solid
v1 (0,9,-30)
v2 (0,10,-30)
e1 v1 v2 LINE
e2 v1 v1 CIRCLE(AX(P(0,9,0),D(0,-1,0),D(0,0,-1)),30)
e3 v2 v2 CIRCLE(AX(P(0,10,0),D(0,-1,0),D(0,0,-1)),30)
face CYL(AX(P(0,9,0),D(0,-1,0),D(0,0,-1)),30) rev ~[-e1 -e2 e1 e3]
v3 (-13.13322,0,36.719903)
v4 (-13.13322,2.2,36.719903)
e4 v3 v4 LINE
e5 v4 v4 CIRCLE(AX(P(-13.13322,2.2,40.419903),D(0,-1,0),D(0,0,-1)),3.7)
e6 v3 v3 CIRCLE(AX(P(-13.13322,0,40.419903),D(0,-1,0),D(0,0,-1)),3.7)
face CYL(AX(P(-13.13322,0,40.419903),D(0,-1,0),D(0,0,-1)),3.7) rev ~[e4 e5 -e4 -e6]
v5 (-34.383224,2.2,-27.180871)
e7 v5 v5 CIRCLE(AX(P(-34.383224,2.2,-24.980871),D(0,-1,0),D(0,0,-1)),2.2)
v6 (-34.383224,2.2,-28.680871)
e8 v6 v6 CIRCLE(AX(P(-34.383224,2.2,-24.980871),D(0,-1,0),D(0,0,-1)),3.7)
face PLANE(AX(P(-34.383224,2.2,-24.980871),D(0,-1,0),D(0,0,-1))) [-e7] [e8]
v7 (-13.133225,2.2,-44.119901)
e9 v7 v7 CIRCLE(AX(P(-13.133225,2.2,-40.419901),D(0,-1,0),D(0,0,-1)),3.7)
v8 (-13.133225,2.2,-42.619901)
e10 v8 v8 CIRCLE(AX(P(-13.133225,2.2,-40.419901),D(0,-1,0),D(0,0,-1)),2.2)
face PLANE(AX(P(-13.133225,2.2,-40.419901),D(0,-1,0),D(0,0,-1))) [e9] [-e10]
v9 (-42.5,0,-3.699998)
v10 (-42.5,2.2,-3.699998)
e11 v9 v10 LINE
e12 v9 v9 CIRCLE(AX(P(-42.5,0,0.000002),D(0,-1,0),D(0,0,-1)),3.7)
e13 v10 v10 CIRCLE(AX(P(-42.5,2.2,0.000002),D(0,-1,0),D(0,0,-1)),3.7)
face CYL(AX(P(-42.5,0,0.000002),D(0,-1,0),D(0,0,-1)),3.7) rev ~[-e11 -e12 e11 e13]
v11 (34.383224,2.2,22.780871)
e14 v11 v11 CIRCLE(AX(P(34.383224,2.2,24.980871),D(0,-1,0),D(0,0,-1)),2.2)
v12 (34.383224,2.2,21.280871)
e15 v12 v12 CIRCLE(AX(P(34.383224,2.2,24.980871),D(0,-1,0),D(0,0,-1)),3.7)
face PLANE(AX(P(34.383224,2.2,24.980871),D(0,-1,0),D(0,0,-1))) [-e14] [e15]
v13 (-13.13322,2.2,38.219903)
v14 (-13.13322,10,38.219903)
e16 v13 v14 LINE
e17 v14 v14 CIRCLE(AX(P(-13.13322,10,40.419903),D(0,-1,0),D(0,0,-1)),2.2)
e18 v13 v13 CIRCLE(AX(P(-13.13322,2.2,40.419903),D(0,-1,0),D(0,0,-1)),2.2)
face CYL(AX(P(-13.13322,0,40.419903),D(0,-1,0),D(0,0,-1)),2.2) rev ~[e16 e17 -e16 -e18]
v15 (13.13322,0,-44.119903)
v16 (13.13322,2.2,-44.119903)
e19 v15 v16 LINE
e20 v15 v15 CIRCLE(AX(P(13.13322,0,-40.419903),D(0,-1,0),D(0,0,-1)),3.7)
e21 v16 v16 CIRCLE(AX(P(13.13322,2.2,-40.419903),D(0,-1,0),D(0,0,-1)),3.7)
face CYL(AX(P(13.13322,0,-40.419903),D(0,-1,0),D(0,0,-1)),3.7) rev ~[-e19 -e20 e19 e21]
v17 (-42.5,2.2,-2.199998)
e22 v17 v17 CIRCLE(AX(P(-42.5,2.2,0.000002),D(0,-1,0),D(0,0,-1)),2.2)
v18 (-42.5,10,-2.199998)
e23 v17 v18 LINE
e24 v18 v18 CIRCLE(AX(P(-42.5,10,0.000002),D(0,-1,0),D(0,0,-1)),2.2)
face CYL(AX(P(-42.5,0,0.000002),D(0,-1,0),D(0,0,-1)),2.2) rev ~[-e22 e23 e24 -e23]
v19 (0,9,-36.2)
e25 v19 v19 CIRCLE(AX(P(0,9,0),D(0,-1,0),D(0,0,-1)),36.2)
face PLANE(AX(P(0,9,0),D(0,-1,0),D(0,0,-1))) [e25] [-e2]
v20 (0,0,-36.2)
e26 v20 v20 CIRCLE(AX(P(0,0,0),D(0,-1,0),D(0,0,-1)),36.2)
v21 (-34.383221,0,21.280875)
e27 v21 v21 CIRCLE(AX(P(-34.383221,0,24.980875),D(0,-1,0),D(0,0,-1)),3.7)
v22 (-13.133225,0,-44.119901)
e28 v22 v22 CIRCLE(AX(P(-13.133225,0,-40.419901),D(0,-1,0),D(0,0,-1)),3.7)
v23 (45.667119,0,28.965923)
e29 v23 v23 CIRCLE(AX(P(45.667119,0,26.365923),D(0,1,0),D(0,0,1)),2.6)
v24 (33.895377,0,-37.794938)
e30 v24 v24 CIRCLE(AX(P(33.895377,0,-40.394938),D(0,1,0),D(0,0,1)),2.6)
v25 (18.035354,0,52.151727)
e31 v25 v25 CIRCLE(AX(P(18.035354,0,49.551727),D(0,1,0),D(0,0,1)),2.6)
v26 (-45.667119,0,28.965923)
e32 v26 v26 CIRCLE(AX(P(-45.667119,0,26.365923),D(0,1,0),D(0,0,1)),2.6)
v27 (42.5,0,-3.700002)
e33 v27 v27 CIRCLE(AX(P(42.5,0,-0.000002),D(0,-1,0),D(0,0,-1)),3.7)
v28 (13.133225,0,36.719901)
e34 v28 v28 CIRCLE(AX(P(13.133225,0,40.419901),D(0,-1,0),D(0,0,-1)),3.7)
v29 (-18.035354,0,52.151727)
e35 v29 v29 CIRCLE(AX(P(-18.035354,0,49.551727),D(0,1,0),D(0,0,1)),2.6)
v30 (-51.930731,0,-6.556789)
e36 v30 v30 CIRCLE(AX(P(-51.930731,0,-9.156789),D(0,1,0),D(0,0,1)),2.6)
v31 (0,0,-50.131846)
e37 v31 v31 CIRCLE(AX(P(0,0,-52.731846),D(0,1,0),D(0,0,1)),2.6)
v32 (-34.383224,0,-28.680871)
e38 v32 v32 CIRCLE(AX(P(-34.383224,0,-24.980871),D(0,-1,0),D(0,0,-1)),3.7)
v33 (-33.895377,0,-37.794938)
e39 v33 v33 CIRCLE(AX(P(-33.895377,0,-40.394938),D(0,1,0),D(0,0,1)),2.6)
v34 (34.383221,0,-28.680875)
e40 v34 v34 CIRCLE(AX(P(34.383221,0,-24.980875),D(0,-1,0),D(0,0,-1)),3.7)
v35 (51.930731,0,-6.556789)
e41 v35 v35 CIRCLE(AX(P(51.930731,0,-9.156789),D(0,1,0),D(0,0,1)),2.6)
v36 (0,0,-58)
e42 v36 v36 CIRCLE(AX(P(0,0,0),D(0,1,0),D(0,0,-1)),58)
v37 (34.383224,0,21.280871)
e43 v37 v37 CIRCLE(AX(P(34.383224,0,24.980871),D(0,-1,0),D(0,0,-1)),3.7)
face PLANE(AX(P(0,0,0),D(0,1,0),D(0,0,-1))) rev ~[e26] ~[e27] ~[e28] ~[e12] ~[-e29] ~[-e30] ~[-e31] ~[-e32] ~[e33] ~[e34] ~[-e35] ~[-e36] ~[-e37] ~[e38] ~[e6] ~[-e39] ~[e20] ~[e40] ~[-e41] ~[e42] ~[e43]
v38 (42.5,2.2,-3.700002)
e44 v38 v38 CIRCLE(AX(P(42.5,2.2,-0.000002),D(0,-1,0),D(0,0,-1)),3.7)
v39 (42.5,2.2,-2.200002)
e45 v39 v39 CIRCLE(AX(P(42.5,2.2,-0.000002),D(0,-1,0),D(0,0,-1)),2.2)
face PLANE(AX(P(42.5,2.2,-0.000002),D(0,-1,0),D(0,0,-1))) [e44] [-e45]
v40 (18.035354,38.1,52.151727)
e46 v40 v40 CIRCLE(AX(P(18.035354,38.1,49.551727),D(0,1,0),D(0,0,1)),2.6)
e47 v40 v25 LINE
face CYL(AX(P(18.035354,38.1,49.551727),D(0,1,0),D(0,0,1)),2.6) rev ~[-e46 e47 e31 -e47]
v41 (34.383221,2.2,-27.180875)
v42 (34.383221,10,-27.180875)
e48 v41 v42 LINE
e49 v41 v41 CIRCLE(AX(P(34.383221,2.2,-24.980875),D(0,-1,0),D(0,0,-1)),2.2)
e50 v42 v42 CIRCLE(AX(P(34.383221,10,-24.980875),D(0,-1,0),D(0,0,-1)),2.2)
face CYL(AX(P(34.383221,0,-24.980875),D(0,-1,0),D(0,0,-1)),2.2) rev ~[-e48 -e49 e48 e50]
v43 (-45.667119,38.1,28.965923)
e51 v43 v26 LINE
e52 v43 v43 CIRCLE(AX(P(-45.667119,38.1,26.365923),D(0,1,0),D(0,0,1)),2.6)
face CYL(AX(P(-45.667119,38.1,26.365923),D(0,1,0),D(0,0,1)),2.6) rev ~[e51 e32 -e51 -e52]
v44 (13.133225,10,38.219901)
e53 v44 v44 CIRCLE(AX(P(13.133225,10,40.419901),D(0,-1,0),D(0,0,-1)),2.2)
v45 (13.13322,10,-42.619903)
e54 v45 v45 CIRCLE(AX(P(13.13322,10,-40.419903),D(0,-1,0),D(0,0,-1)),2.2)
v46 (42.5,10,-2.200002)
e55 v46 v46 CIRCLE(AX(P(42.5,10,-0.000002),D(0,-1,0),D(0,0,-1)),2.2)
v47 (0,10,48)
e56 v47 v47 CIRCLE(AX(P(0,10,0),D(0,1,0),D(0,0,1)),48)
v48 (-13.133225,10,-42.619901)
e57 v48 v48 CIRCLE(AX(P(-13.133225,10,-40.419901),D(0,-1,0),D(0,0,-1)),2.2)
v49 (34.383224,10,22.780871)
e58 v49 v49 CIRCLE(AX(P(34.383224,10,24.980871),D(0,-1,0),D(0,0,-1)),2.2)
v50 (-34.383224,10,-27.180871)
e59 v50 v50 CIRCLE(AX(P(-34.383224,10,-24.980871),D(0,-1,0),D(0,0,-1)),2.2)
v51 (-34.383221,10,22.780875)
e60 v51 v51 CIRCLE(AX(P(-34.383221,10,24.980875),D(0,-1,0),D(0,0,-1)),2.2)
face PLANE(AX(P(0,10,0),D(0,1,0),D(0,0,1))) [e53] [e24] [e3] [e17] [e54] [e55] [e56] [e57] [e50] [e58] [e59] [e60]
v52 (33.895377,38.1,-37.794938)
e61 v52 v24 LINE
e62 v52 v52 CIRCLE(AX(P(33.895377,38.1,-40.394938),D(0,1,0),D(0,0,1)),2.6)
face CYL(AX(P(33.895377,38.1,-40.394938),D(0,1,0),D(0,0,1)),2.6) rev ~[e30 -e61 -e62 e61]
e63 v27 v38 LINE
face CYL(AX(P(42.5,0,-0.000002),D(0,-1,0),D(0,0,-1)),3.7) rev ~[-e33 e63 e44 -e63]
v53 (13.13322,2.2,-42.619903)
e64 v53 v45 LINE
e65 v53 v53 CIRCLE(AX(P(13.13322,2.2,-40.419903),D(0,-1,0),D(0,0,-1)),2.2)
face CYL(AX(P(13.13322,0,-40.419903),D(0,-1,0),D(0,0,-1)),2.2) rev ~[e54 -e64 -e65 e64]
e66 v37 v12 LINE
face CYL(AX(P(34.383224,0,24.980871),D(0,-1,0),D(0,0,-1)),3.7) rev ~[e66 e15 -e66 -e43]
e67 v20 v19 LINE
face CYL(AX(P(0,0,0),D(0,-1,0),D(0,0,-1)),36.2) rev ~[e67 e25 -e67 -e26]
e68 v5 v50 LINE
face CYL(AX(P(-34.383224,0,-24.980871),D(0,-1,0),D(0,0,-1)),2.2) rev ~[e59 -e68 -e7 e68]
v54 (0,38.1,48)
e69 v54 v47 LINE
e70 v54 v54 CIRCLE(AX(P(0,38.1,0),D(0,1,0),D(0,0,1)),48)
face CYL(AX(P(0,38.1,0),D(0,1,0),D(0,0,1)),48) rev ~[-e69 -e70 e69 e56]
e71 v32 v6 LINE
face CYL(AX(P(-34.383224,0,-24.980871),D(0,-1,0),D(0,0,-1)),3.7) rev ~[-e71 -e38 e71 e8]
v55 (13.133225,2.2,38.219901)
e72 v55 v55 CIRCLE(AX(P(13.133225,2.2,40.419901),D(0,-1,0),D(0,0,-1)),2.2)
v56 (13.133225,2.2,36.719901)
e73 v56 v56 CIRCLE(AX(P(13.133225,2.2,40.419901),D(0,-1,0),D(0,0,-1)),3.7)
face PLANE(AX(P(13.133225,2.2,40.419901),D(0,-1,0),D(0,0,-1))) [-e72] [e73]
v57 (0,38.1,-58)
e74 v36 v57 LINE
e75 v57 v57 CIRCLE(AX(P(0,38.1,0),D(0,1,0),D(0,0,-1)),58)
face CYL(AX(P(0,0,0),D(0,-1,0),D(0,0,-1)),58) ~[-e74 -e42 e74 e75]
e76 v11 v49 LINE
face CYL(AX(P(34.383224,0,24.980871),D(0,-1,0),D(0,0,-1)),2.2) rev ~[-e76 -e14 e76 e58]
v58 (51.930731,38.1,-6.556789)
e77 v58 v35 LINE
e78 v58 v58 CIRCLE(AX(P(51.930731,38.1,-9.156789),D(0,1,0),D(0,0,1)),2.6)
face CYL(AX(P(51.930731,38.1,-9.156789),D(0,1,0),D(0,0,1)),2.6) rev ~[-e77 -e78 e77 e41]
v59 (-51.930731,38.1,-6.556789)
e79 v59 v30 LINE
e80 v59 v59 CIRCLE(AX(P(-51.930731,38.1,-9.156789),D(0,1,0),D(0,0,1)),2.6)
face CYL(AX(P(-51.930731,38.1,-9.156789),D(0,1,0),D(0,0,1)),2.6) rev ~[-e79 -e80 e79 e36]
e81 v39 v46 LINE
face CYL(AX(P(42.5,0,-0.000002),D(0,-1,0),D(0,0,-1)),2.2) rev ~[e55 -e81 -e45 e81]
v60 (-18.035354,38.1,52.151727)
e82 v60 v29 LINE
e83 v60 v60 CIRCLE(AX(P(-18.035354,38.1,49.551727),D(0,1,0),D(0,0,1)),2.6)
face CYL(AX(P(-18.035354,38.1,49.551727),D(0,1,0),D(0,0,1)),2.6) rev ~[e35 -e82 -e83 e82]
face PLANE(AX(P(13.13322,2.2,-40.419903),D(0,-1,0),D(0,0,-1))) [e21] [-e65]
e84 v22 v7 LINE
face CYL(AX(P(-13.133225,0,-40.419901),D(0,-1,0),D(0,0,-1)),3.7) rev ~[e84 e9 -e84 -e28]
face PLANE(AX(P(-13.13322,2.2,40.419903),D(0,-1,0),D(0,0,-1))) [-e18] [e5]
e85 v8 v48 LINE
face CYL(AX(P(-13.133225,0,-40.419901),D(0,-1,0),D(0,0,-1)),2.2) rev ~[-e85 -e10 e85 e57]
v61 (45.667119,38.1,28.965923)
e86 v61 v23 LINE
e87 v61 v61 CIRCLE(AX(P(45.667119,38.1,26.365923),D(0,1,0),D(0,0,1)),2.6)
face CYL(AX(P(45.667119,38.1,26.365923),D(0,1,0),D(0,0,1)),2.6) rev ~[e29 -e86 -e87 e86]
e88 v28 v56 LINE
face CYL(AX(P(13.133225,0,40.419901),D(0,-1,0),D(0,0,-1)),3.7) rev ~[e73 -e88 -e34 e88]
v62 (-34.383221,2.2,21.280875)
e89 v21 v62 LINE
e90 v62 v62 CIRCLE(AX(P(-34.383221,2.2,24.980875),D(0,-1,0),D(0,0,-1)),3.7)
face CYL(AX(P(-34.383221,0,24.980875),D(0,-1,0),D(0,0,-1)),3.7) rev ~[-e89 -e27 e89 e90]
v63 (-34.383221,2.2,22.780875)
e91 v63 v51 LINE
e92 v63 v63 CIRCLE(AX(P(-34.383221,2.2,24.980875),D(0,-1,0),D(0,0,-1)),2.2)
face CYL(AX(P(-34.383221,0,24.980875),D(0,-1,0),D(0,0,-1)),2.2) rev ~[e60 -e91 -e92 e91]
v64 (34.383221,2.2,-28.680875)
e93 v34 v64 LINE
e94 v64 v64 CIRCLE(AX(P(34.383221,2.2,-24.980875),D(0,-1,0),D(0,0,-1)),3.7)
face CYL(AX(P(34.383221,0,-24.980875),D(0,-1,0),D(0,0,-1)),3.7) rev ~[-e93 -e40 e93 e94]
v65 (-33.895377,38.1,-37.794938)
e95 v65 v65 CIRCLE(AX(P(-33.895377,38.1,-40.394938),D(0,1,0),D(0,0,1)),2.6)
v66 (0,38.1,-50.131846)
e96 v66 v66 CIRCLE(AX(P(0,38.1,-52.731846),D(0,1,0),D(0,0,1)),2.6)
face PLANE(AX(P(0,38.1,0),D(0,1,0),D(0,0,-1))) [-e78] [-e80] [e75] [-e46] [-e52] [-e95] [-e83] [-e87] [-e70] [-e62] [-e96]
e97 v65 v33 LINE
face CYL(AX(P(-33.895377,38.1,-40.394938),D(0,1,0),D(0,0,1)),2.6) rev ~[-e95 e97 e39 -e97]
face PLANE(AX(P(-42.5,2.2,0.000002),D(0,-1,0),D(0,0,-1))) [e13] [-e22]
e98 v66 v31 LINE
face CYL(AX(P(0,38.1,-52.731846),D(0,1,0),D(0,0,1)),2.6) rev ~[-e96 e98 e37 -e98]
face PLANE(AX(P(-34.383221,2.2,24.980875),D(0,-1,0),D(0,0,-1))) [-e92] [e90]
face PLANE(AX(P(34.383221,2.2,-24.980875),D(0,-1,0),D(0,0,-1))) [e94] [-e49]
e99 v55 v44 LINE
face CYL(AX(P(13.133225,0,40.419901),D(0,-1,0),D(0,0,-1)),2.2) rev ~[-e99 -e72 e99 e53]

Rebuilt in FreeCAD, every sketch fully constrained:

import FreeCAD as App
import Part
import Sketcher

V = App.Vector

doc = App.newDocument("Part")
body = doc.addObject("PartDesign::Body", "Body")

# Sketch on XZ plane
sketch1 = body.newObject("Sketcher::SketchObject", "Sketch")
sketch1.AttachmentSupport = (doc.getObject("XZ_Plane"), [""])
sketch1.MapMode = "FlatFace"
sketch1.addGeometry(Part.Circle(V(0, 0, 0), V(0, 0, 1), 58), False)
sketch1.addConstraint([
    Sketcher.Constraint("Coincident", 0, 3, -1, 1),
    Sketcher.Constraint("Diameter", 0, 116.0),
])
pad1 = body.newObject("PartDesign::Pad", "Pad")
pad1.Profile = sketch1
pad1.Length = 38.1
pad1.Reversed = True

# Sketch on XZ plane
sketch2 = body.newObject("Sketcher::SketchObject", "Sketch001")
sketch2.AttachmentSupport = (doc.getObject("XZ_Plane"), [""])
sketch2.MapMode = "FlatFace"
sketch2.AttachmentOffset = App.Placement(V(0, 0, -38.1), App.Rotation())
sketch2.addGeometry(Part.Circle(V(0, 0, 0), V(0, 0, 1), 48), False)
sketch2.addConstraint([
    Sketcher.Constraint("Coincident", 0, 3, -1, 1),
    Sketcher.Constraint("Diameter", 0, 96.0),
])
pocket1 = body.newObject("PartDesign::Pocket", "Pocket")
pocket1.Profile = sketch2
pocket1.Length = 28.1
pocket1.Reversed = True

# Sketch on XZ plane
sketch3 = body.newObject("Sketcher::SketchObject", "Sketch002")
sketch3.AttachmentSupport = (doc.getObject("XZ_Plane"), [""])
sketch3.MapMode = "FlatFace"
sketch3.AttachmentOffset = App.Placement(V(0, 0, -38.1), App.Rotation())
sketch3.addGeometry([
    Part.Circle(V(0, -52.7, 0), V(0, 0, 1), 2.6),  # 0
    Part.Circle(V(33.9, -40.4, 0), V(0, 0, 1), 2.6),  # 1
    Part.Circle(V(51.9, -9.2, 0), V(0, 0, 1), 2.6),  # 2
    Part.Circle(V(45.7, 26.4, 0), V(0, 0, 1), 2.6),  # 3
    Part.Circle(V(18, 49.6, 0), V(0, 0, 1), 2.6),  # 4
    Part.Circle(V(-18, 49.6, 0), V(0, 0, 1), 2.6),  # 5
    Part.Circle(V(-45.7, 26.4, 0), V(0, 0, 1), 2.6),  # 6
    Part.Circle(V(-51.9, -9.2, 0), V(0, 0, 1), 2.6),  # 7
    Part.Circle(V(-33.9, -40.4, 0), V(0, 0, 1), 2.6),  # 8
], False)
sketch3.addConstraint([
    Sketcher.Constraint("Equal", 0, 1),
    Sketcher.Constraint("Equal", 1, 2),
    Sketcher.Constraint("Equal", 2, 3),
    Sketcher.Constraint("Equal", 3, 4),
    Sketcher.Constraint("Equal", 4, 5),
    Sketcher.Constraint("Equal", 5, 6),
    Sketcher.Constraint("Equal", 6, 7),
    Sketcher.Constraint("Equal", 7, 8),
    Sketcher.Constraint("Symmetric", 4, 3, 5, 3, -2),
    Sketcher.Constraint("Symmetric", 3, 3, 6, 3, -2),
    Sketcher.Constraint("Symmetric", 2, 3, 7, 3, -2),
    Sketcher.Constraint("Symmetric", 1, 3, 8, 3, -2),
    Sketcher.Constraint("PointOnObject", 0, 3, -2),
    Sketcher.Constraint("Diameter", 0, 5.2),
    Sketcher.Constraint("DistanceX", -1, 1, 2, 3, 51.930731),
    Sketcher.Constraint("DistanceY", 2, 3, -1, 1, 9.156789),
    Sketcher.Constraint("DistanceX", -1, 1, 3, 3, 45.667119),
    Sketcher.Constraint("DistanceY", 0, 3, 1, 3, 12.336908),
    Sketcher.Constraint("DistanceY", 1, 3, 2, 3, 31.238149),
    Sketcher.Constraint("DistanceX", 1, 3, 3, 3, 11.771741),
    Sketcher.Constraint("DistanceY", 1, 3, 3, 3, 66.760861),
    Sketcher.Constraint("DistanceX", 5, 3, 1, 3, 51.930731),
    Sketcher.Constraint("DistanceY", -1, 1, 4, 3, 49.551727),
])
pocket2 = body.newObject("PartDesign::Pocket", "Pocket001")
pocket2.Profile = sketch3
pocket2.Type = "ThroughAll"
pocket2.Reversed = True

# Sketch on XZ plane
sketch4 = body.newObject("Sketcher::SketchObject", "Sketch003")
sketch4.AttachmentSupport = (doc.getObject("XZ_Plane"), [""])
sketch4.MapMode = "FlatFace"
sketch4.addGeometry(Part.Circle(V(0, 0, 0), V(0, 0, 1), 36), False)
sketch4.addConstraint([
    Sketcher.Constraint("Coincident", 0, 3, -1, 1),
    Sketcher.Constraint("Diameter", 0, 72.4),
])
pocket3 = body.newObject("PartDesign::Pocket", "Pocket002")
pocket3.Profile = sketch4
pocket3.Length = 9

# Sketch on XZ plane
sketch5 = body.newObject("Sketcher::SketchObject", "Sketch004")
sketch5.AttachmentSupport = (doc.getObject("XZ_Plane"), [""])
sketch5.MapMode = "FlatFace"
sketch5.AttachmentOffset = App.Placement(V(0, 0, -9), App.Rotation())
sketch5.addGeometry(Part.Circle(V(0, 0, 0), V(0, 0, 1), 30), False)
sketch5.addConstraint([
    Sketcher.Constraint("Coincident", 0, 3, -1, 1),
    Sketcher.Constraint("Diameter", 0, 60.0),
])
pocket4 = body.newObject("PartDesign::Pocket", "Pocket003")
pocket4.Profile = sketch5
pocket4.Type = "ThroughAll"

# Sketch on XZ plane
sketch6 = body.newObject("Sketcher::SketchObject", "Sketch005")
sketch6.AttachmentSupport = (doc.getObject("XZ_Plane"), [""])
sketch6.MapMode = "FlatFace"
sketch6.addGeometry([
    Part.Circle(V(13.1, -40.4, 0), V(0, 0, 1), 2.2),  # 0
    Part.Circle(V(-13.1, -40.4, 0), V(0, 0, 1), 2.2),  # 1
    Part.Circle(V(-34.4, -25, 0), V(0, 0, 1), 2.2),  # 2
    Part.Circle(V(-42.5, 0, 0), V(0, 0, 1), 2.2),  # 3
    Part.Circle(V(-34.4, 25, 0), V(0, 0, 1), 2.2),  # 4
    Part.Circle(V(-13.1, 40.4, 0), V(0, 0, 1), 2.2),  # 5
    Part.Circle(V(13.1, 40.4, 0), V(0, 0, 1), 2.2),  # 6
    Part.Circle(V(34.4, 25, 0), V(0, 0, 1), 2.2),  # 7
    Part.Circle(V(42.5, 0, 0), V(0, 0, 1), 2.2),  # 8
    Part.Circle(V(34.4, -25, 0), V(0, 0, 1), 2.2),  # 9
], False)
sketch6.addConstraint([
    Sketcher.Constraint("Equal", 0, 1),
    Sketcher.Constraint("Equal", 1, 2),
    Sketcher.Constraint("Equal", 2, 3),
    Sketcher.Constraint("Equal", 3, 4),
    Sketcher.Constraint("Equal", 4, 5),
    Sketcher.Constraint("Equal", 5, 6),
    Sketcher.Constraint("Equal", 6, 7),
    Sketcher.Constraint("Equal", 7, 8),
    Sketcher.Constraint("Equal", 8, 9),
    Sketcher.Constraint("Symmetric", 0, 3, 5, 3, -1, 1),
    Sketcher.Constraint("Symmetric", 1, 3, 6, 3, -1, 1),
    Sketcher.Constraint("Symmetric", 2, 3, 7, 3, -1, 1),
    Sketcher.Constraint("Symmetric", 3, 3, 8, 3, -1, 1),
    Sketcher.Constraint("Symmetric", 4, 3, 9, 3, -1, 1),
    Sketcher.Constraint("Symmetric", 0, 3, 1, 3, -2),
    Sketcher.Constraint("Symmetric", 4, 3, 7, 3, -2),
    Sketcher.Constraint("Diameter", 0, 4.4),
    Sketcher.Constraint("DistanceX", 3, 3, -1, 1, 42.5),
    Sketcher.Constraint("DistanceX", 2, 3, 1, 3, 21.249999),
    Sketcher.Constraint("DistanceY", 1, 3, -1, 1, 40.419901),
    Sketcher.Constraint("DistanceY", 3, 3, 5, 3, 40.4199),
    Sketcher.Constraint("DistanceX", -1, 1, 0, 3, 13.13322),
    Sketcher.Constraint("DistanceY", 2, 3, -1, 1, 24.980871),
])
pocket5 = body.newObject("PartDesign::Pocket", "Pocket004")
pocket5.Profile = sketch6
pocket5.Type = "ThroughAll"

# Sketch on XZ plane
sketch7 = body.newObject("Sketcher::SketchObject", "Sketch006")
sketch7.AttachmentSupport = (doc.getObject("XZ_Plane"), [""])
sketch7.MapMode = "FlatFace"
sketch7.addGeometry([
    Part.Circle(V(-13.1, 40.4, 0), V(0, 0, 1), 3.7),  # 0
    Part.Circle(V(13.1, 40.4, 0), V(0, 0, 1), 3.7),  # 1
    Part.Circle(V(34.4, 25, 0), V(0, 0, 1), 3.7),  # 2
    Part.Circle(V(42.5, 0, 0), V(0, 0, 1), 3.7),  # 3
    Part.Circle(V(34.4, -25, 0), V(0, 0, 1), 3.7),  # 4
    Part.Circle(V(13.1, -40.4, 0), V(0, 0, 1), 3.7),  # 5
    Part.Circle(V(-13.1, -40.4, 0), V(0, 0, 1), 3.7),  # 6
    Part.Circle(V(-34.4, -25, 0), V(0, 0, 1), 3.7),  # 7
    Part.Circle(V(-42.5, 0, 0), V(0, 0, 1), 3.7),  # 8
    Part.Circle(V(-34.4, 25, 0), V(0, 0, 1), 3.7),  # 9
], False)
sketch7.addConstraint([
    Sketcher.Constraint("Equal", 0, 1),
    Sketcher.Constraint("Equal", 1, 2),
    Sketcher.Constraint("Equal", 2, 3),
    Sketcher.Constraint("Equal", 3, 4),
    Sketcher.Constraint("Equal", 4, 5),
    Sketcher.Constraint("Equal", 5, 6),
    Sketcher.Constraint("Equal", 6, 7),
    Sketcher.Constraint("Equal", 7, 8),
    Sketcher.Constraint("Equal", 8, 9),
    Sketcher.Constraint("Symmetric", 0, 3, 5, 3, -1, 1),
    Sketcher.Constraint("Symmetric", 1, 3, 6, 3, -1, 1),
    Sketcher.Constraint("Symmetric", 2, 3, 7, 3, -1, 1),
    Sketcher.Constraint("Symmetric", 3, 3, 8, 3, -1, 1),
    Sketcher.Constraint("Symmetric", 4, 3, 9, 3, -1, 1),
    Sketcher.Constraint("Symmetric", 0, 3, 1, 3, -2),
    Sketcher.Constraint("Symmetric", 4, 3, 7, 3, -2),
    Sketcher.Constraint("Diameter", 0, 7.4),
    Sketcher.Constraint("DistanceX", -1, 1, 3, 3, 42.5),
    Sketcher.Constraint("DistanceX", 1, 3, 2, 3, 21.249999),
    Sketcher.Constraint("DistanceY", -1, 1, 1, 3, 40.419901),
    Sketcher.Constraint("DistanceY", 5, 3, 3, 3, 40.4199),
    Sketcher.Constraint("DistanceX", 0, 3, -1, 1, 13.13322),
    Sketcher.Constraint("DistanceY", -1, 1, 2, 3, 24.980871),
])
pocket6 = body.newObject("PartDesign::Pocket", "Pocket005")
pocket6.Profile = sketch7
pocket6.Length = 2.2

doc.recompute()
